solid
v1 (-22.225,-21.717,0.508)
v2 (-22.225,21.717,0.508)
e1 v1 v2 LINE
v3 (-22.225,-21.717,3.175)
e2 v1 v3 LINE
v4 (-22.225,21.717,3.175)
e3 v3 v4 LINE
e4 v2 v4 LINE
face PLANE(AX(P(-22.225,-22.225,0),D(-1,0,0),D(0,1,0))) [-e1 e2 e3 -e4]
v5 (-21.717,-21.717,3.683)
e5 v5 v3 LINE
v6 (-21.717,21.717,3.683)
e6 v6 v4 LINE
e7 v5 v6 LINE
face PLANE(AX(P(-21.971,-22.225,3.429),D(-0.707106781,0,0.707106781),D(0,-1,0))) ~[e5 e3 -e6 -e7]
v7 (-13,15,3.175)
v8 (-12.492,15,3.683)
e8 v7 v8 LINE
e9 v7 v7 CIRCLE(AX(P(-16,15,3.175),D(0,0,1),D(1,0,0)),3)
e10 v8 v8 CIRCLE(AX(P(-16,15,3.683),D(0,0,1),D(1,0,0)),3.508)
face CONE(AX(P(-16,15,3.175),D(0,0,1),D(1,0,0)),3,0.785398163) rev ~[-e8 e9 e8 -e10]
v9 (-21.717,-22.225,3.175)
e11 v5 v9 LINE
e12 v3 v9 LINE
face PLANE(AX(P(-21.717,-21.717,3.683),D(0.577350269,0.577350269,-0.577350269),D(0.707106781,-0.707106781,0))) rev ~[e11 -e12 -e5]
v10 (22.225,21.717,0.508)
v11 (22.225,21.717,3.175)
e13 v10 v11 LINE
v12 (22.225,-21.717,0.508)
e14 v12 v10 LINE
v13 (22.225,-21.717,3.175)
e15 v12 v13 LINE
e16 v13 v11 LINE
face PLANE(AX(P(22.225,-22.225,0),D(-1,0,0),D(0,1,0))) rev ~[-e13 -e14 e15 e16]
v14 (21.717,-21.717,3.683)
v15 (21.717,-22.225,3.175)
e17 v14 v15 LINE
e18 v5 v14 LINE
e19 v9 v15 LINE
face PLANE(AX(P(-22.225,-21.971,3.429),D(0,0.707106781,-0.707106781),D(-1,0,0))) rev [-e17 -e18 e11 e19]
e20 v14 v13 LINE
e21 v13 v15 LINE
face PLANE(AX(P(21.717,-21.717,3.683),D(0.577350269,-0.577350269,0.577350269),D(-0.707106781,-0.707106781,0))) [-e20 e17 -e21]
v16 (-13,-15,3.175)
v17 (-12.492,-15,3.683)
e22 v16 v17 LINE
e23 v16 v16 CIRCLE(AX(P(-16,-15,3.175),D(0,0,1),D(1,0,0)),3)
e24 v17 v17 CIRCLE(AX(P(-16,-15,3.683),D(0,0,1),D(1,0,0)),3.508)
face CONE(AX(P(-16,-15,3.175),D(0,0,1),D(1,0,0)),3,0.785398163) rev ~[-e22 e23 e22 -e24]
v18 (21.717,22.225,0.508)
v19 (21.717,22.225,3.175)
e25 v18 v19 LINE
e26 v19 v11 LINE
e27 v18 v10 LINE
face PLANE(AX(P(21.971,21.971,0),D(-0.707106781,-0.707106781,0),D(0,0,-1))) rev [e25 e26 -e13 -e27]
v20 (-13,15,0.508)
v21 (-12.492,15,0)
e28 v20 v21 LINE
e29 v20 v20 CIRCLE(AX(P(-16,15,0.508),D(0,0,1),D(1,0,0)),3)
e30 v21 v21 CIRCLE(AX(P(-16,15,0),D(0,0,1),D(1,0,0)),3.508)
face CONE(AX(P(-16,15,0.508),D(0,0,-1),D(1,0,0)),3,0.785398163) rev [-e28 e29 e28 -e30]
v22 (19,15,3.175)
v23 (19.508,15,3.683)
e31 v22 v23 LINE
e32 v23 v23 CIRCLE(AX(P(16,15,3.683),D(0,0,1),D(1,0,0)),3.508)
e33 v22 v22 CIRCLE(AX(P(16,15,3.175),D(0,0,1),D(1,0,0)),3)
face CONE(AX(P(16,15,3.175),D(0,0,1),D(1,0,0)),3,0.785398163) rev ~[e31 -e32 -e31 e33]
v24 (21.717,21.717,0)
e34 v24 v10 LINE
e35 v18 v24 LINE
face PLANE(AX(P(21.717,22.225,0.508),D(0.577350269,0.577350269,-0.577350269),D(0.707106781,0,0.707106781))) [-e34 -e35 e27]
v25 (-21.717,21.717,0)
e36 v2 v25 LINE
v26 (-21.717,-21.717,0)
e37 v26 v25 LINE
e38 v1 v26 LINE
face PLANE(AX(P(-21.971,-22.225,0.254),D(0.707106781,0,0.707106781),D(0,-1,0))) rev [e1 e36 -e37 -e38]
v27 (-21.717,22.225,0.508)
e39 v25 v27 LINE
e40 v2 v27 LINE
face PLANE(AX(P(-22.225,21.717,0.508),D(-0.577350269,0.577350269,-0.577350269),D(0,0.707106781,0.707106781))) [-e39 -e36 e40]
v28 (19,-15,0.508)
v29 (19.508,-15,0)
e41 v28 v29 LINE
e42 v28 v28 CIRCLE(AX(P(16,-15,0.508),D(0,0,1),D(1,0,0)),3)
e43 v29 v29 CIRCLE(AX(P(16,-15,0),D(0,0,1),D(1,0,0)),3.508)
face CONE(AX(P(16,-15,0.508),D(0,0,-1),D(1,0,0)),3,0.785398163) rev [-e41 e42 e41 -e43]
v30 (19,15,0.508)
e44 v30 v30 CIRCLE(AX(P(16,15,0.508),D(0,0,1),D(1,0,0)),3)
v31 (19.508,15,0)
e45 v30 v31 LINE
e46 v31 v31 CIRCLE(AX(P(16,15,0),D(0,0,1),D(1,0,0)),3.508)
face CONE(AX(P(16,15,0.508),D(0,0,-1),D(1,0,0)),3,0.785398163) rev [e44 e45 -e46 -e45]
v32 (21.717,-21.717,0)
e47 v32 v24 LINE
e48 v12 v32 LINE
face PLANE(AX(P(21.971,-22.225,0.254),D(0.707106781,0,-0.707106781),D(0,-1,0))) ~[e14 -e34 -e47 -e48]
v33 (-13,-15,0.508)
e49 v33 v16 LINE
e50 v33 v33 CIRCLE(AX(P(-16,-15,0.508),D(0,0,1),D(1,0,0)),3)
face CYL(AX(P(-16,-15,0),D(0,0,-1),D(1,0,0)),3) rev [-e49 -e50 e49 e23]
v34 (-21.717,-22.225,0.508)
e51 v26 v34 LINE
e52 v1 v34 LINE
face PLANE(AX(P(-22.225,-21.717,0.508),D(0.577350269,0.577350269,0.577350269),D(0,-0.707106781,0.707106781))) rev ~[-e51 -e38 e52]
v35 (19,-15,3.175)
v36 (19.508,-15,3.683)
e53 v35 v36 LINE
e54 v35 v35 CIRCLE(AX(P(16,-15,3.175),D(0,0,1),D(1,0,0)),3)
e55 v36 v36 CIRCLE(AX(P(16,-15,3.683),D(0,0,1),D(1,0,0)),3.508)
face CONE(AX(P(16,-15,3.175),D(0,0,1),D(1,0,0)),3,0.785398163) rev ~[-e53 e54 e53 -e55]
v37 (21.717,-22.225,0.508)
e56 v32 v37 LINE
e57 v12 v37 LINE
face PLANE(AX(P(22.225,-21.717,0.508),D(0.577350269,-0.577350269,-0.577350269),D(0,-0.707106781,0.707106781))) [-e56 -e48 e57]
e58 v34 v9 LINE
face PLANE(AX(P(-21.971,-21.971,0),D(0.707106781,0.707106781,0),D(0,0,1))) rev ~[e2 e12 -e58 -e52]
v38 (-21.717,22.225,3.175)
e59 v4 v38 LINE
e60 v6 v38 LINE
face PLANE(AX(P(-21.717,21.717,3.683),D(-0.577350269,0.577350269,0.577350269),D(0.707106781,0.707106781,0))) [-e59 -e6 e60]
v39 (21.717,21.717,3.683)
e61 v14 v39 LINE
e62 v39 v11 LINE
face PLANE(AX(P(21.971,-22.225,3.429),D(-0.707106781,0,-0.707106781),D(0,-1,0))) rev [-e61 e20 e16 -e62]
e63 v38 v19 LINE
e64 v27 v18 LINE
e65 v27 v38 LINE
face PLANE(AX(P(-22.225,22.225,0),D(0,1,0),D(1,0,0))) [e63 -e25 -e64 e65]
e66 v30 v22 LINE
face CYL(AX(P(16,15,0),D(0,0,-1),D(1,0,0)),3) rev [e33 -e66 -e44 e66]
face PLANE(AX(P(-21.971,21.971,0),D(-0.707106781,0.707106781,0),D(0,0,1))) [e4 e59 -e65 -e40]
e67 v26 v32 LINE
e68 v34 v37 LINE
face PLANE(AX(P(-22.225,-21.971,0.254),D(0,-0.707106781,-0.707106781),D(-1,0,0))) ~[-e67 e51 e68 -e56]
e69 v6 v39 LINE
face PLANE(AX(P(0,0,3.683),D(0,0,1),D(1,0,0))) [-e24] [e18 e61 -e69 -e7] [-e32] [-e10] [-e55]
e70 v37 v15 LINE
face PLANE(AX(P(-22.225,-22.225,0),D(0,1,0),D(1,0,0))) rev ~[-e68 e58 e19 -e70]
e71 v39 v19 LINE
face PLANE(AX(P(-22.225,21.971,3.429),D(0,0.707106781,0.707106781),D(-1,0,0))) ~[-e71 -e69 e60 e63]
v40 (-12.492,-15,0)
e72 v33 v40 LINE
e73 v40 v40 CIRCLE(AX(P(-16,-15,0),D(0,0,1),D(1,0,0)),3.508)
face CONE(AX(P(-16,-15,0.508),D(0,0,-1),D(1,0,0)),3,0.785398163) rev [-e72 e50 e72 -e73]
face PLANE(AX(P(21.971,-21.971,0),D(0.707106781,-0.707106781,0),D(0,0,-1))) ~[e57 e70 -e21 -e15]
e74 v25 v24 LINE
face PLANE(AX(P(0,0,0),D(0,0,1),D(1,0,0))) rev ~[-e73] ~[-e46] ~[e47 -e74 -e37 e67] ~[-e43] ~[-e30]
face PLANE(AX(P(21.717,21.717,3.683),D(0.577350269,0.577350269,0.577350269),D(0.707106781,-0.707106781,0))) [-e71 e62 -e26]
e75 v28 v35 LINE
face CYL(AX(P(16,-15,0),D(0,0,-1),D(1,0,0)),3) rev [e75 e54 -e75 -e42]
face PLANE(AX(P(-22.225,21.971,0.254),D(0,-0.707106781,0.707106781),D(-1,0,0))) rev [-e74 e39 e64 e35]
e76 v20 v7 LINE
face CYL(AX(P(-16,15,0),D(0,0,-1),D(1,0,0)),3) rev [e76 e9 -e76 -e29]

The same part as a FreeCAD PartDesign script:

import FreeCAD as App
import Part
import Sketcher
Q = App.Units.Quantity

doc = App.newDocument("Part")
params = doc.addObject("Spreadsheet::Sheet", "Params")
for row, (alias, value) in enumerate([
    ("sketch1_width", "1.75 in"),
    ("pad1_length", "0.145 in"),
    ("chamfer_size", "0.02 in"),
], start=1):
    params.set(f"A{row}", alias)
    params.set(f"B{row}", "=" + value)
    params.setAlias(f"B{row}", alias)

body = doc.addObject("PartDesign::Body", "Body")

# Sketch on XY plane
sketch1 = body.newObject("Sketcher::SketchObject", "Sketch")
sketch1.AttachmentSupport = (doc.getObject("XY_Plane"), [""])
sketch1.MapMode = "FlatFace"
sketch1.addGeometry([
    Part.LineSegment(App.Vector(-22.225, 22.225, 0), App.Vector(-22.225, -22.225, 0)),  # 0
    Part.LineSegment(App.Vector(-22.225, -22.225, 0), App.Vector(22.225, -22.225, 0)),  # 1
    Part.LineSegment(App.Vector(22.225, -22.225, 0), App.Vector(22.225, 22.225, 0)),  # 2
    Part.LineSegment(App.Vector(22.225, 22.225, 0), App.Vector(-22.225, 22.225, 0)),  # 3
    Part.Circle(App.Vector(-16, -15, 0), App.Vector(0, 0, 1), 3),  # 4
    Part.Circle(App.Vector(16, -15, 0), App.Vector(0, 0, 1), 3),  # 5
    Part.Circle(App.Vector(-16, 15, 0), App.Vector(0, 0, 1), 3),  # 6
    Part.Circle(App.Vector(16, 15, 0), App.Vector(0, 0, 1), 3),  # 7
], False)
sketch1.addConstraint([
    Sketcher.Constraint("Coincident", 0, 2, 1, 1),
    Sketcher.Constraint("Coincident", 1, 2, 2, 1),
    Sketcher.Constraint("Coincident", 2, 2, 3, 1),
    Sketcher.Constraint("Coincident", 3, 2, 0, 1),
    Sketcher.Constraint("Vertical", 0),
    Sketcher.Constraint("Horizontal", 1),
    Sketcher.Constraint("Vertical", 2),
    Sketcher.Constraint("Horizontal", 3),
    Sketcher.Constraint("Equal", 4, 5),
    Sketcher.Constraint("Equal", 5, 6),
    Sketcher.Constraint("Equal", 6, 7),
    Sketcher.Constraint("Symmetric", 5, 3, 6, 3, -1, 1),
    Sketcher.Constraint("Symmetric", 4, 3, 7, 3, -1, 1),
    Sketcher.Constraint("Symmetric", 0, 2, 2, 2, -1, 1),
    Sketcher.Constraint("Symmetric", 4, 3, 5, 3, -2),
    Sketcher.Constraint("Equal", 3, 0),
    Sketcher.Constraint("DistanceX", 1, 1, 1, 2, Q("1.75 in")),
    Sketcher.Constraint("Diameter", 4, Q("6 mm")),
    Sketcher.Constraint("DistanceX", 4, 3, -1, 1, Q("16 mm")),
    Sketcher.Constraint("DistanceY", 4, 3, -1, 1, Q("15 mm")),
])
sketch1.setExpression("Constraints[16]", "Params.sketch1_width")
pad1 = body.newObject("PartDesign::Pad", "Pad")
pad1.Profile = sketch1
pad1.setExpression("Length", "Params.pad1_length")
doc.recompute()

chamfer = body.newObject("PartDesign::Chamfer", "Chamfer")
chamfer.Base = (pad1, ["Edge1"])
chamfer.UseAllEdges = True
chamfer.setExpression("Size", "Params.chamfer_size")

doc.recompute()
